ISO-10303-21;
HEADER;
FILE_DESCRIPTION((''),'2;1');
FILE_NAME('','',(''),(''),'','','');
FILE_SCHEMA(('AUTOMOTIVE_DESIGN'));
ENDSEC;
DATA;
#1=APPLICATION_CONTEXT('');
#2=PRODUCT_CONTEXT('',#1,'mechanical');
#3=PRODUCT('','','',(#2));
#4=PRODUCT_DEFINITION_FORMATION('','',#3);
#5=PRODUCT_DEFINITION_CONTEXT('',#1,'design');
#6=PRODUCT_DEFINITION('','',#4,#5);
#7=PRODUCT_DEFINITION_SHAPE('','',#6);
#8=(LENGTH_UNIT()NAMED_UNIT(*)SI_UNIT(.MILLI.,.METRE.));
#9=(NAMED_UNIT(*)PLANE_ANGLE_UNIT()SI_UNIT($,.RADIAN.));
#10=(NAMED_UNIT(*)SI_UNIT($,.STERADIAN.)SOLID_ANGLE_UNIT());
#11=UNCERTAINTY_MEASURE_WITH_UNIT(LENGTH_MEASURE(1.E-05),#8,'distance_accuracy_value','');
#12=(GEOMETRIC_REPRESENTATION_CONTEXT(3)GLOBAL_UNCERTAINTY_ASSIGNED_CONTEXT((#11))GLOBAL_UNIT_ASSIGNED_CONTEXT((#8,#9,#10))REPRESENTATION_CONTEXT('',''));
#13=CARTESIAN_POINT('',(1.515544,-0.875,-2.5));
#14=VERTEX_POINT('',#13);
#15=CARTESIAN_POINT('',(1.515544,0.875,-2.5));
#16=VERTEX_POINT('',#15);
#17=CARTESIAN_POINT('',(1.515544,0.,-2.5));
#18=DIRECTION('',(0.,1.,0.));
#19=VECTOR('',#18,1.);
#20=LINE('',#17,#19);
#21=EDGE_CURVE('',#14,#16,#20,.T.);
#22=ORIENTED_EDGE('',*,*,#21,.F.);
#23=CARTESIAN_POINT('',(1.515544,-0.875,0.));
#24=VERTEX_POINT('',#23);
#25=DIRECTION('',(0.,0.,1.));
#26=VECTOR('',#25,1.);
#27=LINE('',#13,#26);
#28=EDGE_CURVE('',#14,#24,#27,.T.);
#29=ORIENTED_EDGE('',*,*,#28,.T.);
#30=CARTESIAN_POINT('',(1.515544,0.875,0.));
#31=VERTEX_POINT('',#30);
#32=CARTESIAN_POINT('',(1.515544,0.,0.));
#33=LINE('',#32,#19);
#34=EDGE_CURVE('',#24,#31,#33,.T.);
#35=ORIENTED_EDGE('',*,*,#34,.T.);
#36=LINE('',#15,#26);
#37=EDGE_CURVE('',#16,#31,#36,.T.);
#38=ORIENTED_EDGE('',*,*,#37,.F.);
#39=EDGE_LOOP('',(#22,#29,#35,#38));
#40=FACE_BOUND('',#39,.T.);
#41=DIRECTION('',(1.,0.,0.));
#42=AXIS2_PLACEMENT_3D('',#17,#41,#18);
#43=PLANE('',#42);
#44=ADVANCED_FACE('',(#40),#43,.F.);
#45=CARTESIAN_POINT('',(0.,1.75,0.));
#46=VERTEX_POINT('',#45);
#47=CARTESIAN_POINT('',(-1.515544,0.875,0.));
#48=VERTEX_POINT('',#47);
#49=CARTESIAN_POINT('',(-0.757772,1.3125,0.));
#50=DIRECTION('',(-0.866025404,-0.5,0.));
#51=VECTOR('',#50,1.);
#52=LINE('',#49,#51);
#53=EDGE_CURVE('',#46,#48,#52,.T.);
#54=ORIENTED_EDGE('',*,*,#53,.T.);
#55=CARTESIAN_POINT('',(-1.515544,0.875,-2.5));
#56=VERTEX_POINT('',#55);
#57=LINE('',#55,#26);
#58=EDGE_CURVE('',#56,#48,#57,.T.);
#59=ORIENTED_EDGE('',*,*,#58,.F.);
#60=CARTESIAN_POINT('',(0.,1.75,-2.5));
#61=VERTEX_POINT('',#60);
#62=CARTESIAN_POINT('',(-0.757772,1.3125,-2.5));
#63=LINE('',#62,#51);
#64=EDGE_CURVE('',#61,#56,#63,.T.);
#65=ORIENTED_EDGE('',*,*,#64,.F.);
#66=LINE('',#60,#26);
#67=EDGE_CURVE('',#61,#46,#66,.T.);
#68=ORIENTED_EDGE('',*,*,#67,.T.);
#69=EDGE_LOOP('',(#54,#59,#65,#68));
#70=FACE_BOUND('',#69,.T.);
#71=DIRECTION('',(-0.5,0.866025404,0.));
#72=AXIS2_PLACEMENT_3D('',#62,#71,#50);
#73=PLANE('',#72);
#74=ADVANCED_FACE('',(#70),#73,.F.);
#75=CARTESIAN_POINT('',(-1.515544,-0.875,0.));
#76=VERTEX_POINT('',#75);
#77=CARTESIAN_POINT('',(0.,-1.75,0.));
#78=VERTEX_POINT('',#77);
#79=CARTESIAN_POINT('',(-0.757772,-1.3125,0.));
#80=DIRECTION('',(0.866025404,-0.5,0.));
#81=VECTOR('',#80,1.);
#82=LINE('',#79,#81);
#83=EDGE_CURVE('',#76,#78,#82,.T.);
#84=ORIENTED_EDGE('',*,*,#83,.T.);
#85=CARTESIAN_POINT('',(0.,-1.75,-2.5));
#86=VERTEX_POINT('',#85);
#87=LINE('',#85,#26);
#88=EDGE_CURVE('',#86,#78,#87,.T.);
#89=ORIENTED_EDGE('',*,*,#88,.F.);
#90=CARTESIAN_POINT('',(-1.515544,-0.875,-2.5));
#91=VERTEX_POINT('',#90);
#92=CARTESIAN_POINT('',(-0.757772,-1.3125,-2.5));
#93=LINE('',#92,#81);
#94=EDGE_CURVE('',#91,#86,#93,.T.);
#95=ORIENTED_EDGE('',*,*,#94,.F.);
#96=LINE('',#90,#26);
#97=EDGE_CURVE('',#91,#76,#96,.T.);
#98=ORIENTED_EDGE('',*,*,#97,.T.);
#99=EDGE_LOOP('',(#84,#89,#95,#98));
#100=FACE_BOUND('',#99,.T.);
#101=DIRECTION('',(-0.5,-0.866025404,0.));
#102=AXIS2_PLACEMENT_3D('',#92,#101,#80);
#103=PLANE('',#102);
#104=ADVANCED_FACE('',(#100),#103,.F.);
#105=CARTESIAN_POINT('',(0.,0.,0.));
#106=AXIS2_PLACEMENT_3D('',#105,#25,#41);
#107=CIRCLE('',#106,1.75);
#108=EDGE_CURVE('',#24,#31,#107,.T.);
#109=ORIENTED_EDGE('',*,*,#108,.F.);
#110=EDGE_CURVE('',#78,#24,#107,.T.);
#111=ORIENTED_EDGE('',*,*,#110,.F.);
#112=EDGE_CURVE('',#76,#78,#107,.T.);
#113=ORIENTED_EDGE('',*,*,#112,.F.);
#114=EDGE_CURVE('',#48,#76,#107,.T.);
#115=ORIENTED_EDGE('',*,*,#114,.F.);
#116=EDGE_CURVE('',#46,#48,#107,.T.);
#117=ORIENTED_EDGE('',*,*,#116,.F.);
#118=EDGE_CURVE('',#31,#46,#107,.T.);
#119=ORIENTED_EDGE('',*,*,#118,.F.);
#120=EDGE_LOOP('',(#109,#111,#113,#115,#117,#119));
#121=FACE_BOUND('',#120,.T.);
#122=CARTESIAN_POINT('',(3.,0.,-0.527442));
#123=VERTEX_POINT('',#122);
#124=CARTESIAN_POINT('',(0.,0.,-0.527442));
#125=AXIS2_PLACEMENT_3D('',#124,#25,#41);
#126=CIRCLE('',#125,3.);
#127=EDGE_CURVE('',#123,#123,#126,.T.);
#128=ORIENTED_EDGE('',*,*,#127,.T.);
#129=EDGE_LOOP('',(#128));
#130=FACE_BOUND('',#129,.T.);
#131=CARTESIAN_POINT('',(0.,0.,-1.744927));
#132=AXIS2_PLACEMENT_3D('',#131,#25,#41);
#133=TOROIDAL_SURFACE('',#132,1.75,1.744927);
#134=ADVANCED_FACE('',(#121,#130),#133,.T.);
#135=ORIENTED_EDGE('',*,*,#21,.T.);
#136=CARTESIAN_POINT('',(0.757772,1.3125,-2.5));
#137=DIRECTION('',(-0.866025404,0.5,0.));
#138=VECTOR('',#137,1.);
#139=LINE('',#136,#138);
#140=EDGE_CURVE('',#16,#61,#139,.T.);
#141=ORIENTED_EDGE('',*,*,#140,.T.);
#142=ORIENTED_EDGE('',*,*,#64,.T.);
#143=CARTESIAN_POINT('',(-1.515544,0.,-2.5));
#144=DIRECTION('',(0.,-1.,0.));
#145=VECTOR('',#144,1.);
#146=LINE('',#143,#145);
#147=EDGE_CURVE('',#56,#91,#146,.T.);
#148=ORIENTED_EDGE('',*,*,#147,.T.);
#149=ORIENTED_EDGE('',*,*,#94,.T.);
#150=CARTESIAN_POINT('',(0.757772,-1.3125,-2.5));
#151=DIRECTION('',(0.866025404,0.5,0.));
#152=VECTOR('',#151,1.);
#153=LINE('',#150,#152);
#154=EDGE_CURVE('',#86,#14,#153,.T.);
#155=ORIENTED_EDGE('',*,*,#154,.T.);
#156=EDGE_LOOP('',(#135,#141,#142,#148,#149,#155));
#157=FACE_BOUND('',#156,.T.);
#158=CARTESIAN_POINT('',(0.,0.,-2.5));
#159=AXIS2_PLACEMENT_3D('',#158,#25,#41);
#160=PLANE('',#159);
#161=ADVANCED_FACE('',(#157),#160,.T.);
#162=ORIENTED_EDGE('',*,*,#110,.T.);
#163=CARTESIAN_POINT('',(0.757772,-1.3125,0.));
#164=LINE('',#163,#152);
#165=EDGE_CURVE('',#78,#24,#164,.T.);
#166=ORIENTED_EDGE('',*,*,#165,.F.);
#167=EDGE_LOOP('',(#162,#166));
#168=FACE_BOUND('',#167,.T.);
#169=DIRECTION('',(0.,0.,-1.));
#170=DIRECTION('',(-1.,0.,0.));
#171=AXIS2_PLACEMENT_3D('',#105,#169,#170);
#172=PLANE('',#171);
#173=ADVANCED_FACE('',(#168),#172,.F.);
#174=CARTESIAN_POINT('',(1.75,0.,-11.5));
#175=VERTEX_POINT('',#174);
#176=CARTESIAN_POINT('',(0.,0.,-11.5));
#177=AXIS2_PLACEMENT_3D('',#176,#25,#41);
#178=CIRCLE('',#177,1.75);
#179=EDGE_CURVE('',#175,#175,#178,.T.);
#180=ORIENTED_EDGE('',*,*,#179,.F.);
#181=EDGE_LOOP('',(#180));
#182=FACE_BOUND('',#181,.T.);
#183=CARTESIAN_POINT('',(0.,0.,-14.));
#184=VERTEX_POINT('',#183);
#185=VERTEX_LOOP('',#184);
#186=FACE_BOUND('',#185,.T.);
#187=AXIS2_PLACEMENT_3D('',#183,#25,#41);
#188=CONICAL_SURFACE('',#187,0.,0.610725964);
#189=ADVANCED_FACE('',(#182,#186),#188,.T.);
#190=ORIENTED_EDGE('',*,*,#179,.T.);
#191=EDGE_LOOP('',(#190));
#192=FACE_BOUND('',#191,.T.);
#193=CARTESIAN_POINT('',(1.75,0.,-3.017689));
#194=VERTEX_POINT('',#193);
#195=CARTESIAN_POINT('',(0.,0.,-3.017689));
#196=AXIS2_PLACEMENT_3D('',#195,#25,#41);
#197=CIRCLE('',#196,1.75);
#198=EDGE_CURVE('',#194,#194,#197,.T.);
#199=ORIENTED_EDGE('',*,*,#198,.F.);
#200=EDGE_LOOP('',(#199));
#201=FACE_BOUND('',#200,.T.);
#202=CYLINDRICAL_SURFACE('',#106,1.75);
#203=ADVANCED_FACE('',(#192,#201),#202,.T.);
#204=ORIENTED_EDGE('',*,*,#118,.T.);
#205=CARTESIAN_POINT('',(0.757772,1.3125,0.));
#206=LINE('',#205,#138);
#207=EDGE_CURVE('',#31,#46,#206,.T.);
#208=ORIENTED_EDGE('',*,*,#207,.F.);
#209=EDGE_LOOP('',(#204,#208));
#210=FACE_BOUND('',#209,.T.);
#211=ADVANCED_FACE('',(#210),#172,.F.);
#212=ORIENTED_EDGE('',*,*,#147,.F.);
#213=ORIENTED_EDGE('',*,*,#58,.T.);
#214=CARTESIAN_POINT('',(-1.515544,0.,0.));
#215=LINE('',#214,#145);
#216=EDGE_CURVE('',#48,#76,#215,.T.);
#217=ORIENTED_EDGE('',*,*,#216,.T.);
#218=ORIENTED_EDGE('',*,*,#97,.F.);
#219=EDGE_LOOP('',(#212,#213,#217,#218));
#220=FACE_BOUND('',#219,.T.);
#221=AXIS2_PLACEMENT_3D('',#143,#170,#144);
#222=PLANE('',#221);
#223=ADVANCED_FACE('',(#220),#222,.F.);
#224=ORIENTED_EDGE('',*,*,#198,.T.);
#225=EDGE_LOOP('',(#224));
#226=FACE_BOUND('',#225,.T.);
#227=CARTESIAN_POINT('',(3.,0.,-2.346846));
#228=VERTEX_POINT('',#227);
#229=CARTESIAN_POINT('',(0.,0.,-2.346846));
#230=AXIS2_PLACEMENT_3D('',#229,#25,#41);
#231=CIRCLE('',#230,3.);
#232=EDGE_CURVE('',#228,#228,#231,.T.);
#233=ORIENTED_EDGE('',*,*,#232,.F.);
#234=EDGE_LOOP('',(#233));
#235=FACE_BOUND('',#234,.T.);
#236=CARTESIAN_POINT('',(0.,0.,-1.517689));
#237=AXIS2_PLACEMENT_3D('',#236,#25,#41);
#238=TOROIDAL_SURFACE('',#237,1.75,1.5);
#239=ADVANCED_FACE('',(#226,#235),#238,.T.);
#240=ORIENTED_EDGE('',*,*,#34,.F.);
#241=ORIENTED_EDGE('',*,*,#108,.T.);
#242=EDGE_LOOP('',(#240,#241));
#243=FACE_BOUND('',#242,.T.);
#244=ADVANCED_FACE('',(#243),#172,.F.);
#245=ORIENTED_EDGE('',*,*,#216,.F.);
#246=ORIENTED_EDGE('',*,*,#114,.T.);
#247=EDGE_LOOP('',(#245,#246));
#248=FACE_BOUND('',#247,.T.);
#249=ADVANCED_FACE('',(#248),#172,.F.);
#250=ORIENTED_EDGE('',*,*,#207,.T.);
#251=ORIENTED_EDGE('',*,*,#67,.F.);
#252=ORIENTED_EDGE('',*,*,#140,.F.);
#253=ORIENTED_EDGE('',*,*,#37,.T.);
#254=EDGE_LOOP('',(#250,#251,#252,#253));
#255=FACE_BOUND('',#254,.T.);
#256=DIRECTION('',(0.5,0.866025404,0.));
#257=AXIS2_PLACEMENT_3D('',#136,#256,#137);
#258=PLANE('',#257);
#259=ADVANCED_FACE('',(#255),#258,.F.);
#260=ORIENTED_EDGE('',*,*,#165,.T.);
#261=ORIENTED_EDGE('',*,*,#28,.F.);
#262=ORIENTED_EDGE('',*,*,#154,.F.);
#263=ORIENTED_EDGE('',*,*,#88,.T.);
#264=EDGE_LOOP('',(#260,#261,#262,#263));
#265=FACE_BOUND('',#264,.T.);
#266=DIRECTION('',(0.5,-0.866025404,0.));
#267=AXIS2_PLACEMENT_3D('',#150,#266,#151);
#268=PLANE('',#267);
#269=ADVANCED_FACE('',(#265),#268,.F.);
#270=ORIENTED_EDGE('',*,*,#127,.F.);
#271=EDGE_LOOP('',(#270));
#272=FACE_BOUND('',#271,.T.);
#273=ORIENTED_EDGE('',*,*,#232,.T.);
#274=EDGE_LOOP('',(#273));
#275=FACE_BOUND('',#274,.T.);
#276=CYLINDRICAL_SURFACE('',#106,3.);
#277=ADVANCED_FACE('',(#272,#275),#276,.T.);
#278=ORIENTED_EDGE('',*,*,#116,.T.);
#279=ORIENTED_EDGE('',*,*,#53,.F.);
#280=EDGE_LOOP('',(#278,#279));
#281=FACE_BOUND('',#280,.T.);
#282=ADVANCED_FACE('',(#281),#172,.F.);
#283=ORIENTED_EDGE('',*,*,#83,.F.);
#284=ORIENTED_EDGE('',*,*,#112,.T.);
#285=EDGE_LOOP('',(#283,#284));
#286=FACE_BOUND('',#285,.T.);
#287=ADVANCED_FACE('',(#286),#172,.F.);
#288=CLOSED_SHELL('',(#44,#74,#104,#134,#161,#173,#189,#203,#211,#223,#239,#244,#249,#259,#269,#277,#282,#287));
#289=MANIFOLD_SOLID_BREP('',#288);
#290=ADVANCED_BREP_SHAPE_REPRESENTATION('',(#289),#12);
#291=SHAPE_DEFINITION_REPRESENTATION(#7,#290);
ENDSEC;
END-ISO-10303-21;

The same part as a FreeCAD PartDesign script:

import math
import FreeCAD as App
import Part
import Sketcher
Q = App.Units.Quantity


def add_polygon(sketch, points):
    """Adds a closed chain of lines whose ends are joined by coincident constraints."""
    first, n = sketch.GeometryCount, len(points)
    for a, b in zip(points, points[1:] + points[:1]):
        sketch.addGeometry(Part.LineSegment(App.Vector(*a, 0), App.Vector(*b, 0)), False)
    for i in range(n):
        sketch.addConstraint(Sketcher.Constraint("Coincident", first + i, 2, first + (i + 1) % n, 1))

doc = App.newDocument("Part")
params = doc.addObject("Spreadsheet::Sheet", "Params")
for row, (alias, value) in enumerate([
    ("sketch1_radius", "1.5 mm"),
    ("sketch1_height", "14 mm"),
    ("sketch1_width", "1.75 mm"),
    ("revolution_angle", "360 deg"),
    ("sketch2_height", "1.75 mm"),
    ("pocket1_length", "2.5 mm"),
], start=1):
    params.set(f"A{row}", alias)
    params.set(f"B{row}", "=" + value)
    params.setAlias(f"B{row}", alias)

body = doc.addObject("PartDesign::Body", "Body")

# Sketch on YZ plane
sketch1 = doc.addObject("Sketcher::SketchObject", "Sketch")
body.addObject(sketch1)
sketch1.AttachmentSupport = (doc.YZ_Plane, [""])
sketch1.MapMode = "FlatFace"
sketch1.addGeometry([
    Part.LineSegment(App.Vector(0, 0, 0), App.Vector(0, -14, 0)),  # 0
    Part.LineSegment(App.Vector(0, -14, 0), App.Vector(1.75, -11.5, 0)),  # 1
    Part.LineSegment(App.Vector(1.75, -11.5, 0), App.Vector(1.75, -3.017689, 0)),  # 2
    Part.ArcOfCircle(Part.Circle(App.Vector(1.75, -1.517689, 0), App.Vector(0, 0, 1), 1.5), math.radians(-90), math.radians(-33.55731)),  # 3
    Part.LineSegment(App.Vector(3, -2.346846, 0), App.Vector(3, -0.527442, 0)),  # 4
    Part.ArcOfCircle(Part.Circle(App.Vector(1.75, -1.744927, 0), App.Vector(0, 0, 1), 1.744927), math.radians(44.245043), math.radians(90)),  # 5
    Part.LineSegment(App.Vector(1.75, 0, 0), App.Vector(0, 0, 0)),  # 6
], False)
sketch1.addConstraint([
    Sketcher.Constraint("Coincident", 0, 2, 1, 1),
    Sketcher.Constraint("Coincident", 1, 2, 2, 1),
    Sketcher.Constraint("Coincident", 2, 2, 3, 1),
    Sketcher.Constraint("Coincident", 3, 2, 4, 1),
    Sketcher.Constraint("Coincident", 4, 2, 5, 1),
    Sketcher.Constraint("Tangent", 5, 2, 6, 1),
    Sketcher.Constraint("Coincident", 6, 2, 0, 1),
    Sketcher.Constraint("Vertical", 0),
    Sketcher.Constraint("Vertical", 2),
    Sketcher.Constraint("Vertical", 4),
    Sketcher.Constraint("Horizontal", 6),
    Sketcher.Constraint("Coincident", 6, 2, -1, 1),
    Sketcher.Constraint("Vertical", 3, 3, 5, 3),
    Sketcher.Constraint("Vertical", 5, 3, 1, 2),
    Sketcher.Constraint("Radius", 3, 1.5),
    Sketcher.Constraint("DistanceY", 0, 2, 0, 1, 14.0),
    Sketcher.Constraint("DistanceX", -1, 1, 3, 2, 3.0),
    Sketcher.Constraint("DistanceX", 6, 2, 6, 1, 1.75),
    Sketcher.Constraint("DistanceY", 1, 2, -1, 1, 11.5),
    Sketcher.Constraint("Radius", 5, 1.744927),
    Sketcher.Constraint("DistanceY", 2, 1, 2, 2, 8.482311),
])
sketch1.setExpression("Constraints[14]", "Params.sketch1_radius")
sketch1.setExpression("Constraints[15]", "Params.sketch1_height")
sketch1.setExpression("Constraints[17]", "Params.sketch1_width")
revolution = doc.addObject("PartDesign::Revolution", "Revolution")
body.addObject(revolution)
revolution.Profile = sketch1
revolution.ReferenceAxis = (sketch1, ["V_Axis"])
revolution.setExpression("Angle", "Params.revolution_angle")

# Sketch on XY plane
sketch2 = doc.addObject("Sketcher::SketchObject", "Sketch001")
body.addObject(sketch2)
sketch2.AttachmentSupport = (doc.XY_Plane, [""])
sketch2.MapMode = "FlatFace"
add_polygon(sketch2, [(-1.515544, 0.875), (-1.515544, -0.875), (0, -1.75), (1.515544, -0.875), (1.515544, 0.875), (0, 1.75)])  # lines 0-5
sketch2.addConstraint([
    Sketcher.Constraint("Vertical", 0),
    Sketcher.Constraint("Vertical", 3),
    Sketcher.Constraint("Symmetric", 0, 2, 3, 2, -1, 1),
    Sketcher.Constraint("Symmetric", 1, 2, 4, 2, -1, 1),
    Sketcher.Constraint("PointOnObject", 1, 2, -2),
    Sketcher.Constraint("Parallel", 2, 5),
    Sketcher.Constraint("Horizontal", 0, 2, 2, 2),
    Sketcher.Constraint("Angle", 1, Q("-30 deg")),
    Sketcher.Constraint("DistanceY", 0, 2, 0, 1, 1.75),
    Sketcher.Constraint("DistanceY", 1, 2, 4, 2, 3.5),
])
sketch2.setExpression("Constraints[14]", "Params.sketch2_height")
pocket1 = doc.addObject("PartDesign::Pocket", "Pocket")
body.addObject(pocket1)
pocket1.Profile = sketch2
pocket1.setExpression("Length", "Params.pocket1_length")

doc.recompute()
